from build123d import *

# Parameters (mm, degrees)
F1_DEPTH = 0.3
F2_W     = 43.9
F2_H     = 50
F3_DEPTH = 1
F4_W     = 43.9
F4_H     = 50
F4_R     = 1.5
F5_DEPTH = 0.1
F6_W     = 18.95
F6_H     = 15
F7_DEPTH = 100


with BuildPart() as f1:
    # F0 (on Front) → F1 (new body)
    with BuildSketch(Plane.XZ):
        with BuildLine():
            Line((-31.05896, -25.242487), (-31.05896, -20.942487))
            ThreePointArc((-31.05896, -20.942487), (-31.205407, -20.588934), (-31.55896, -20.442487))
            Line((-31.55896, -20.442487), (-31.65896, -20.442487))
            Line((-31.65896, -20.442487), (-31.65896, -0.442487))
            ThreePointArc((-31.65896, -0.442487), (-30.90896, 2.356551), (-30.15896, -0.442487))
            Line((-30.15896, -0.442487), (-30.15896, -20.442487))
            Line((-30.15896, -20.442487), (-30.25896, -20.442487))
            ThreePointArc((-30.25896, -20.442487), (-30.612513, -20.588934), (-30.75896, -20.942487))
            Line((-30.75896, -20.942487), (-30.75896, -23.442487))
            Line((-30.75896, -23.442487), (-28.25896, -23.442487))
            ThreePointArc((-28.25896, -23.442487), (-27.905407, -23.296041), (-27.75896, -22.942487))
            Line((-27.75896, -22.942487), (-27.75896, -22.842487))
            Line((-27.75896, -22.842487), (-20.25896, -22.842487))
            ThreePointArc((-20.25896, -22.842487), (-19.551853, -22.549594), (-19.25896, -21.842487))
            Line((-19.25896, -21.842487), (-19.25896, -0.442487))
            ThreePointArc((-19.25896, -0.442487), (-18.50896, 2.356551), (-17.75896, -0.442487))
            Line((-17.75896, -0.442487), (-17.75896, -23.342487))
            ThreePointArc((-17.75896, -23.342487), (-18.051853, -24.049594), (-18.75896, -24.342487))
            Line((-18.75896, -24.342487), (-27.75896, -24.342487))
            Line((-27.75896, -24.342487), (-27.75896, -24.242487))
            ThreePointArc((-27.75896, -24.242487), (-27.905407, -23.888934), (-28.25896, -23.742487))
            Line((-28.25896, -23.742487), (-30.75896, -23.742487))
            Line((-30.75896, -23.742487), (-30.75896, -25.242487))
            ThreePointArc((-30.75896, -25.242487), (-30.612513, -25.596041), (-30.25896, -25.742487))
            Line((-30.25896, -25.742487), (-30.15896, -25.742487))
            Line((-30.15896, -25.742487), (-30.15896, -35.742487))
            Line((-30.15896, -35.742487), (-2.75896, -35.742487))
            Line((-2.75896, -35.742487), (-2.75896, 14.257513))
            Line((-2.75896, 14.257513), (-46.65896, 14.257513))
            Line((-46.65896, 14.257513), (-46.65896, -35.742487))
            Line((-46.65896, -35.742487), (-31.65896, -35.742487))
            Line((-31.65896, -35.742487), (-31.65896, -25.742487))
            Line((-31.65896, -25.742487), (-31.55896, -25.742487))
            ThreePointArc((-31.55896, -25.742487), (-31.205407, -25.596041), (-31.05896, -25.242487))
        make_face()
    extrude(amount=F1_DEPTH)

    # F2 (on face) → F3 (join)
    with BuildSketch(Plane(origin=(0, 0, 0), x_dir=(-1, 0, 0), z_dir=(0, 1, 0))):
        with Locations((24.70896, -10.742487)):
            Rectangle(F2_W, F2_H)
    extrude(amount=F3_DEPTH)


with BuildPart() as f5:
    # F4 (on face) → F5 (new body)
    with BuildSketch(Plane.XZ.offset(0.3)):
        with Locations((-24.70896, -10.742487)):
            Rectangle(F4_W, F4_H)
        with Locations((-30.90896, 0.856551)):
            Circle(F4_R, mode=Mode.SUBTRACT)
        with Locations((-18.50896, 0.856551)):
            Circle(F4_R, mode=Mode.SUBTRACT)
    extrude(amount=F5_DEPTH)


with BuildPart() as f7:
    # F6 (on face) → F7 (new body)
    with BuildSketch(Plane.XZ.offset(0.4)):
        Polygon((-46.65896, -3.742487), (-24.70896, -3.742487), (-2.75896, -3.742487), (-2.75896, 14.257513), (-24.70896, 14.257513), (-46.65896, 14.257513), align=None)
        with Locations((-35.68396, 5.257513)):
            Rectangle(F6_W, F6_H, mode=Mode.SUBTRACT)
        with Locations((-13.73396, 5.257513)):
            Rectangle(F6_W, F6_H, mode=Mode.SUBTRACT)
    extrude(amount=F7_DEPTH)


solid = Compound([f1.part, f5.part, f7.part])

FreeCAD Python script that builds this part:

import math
import FreeCAD as App
import Part
import Sketcher
from FreeCAD import Vector


def add_polygon(sketch, points):
    """Adds a closed chain of lines whose ends are joined by coincident constraints."""
    first, n = sketch.GeometryCount, len(points)
    for a, b in zip(points, points[1:] + points[:1]):
        sketch.addGeometry(Part.LineSegment(App.Vector(*a, 0), App.Vector(*b, 0)), False)
    for i in range(n):
        sketch.addConstraint(Sketcher.Constraint("Coincident", first + i, 2, first + (i + 1) % n, 1))

doc = App.newDocument("Part")
params = doc.addObject("Spreadsheet::Sheet", "Params")
for row, (alias, value) in enumerate([
    ("sketch1_radius", "0.999999 mm"),
    ("sketch1_radius2", "0.500001 mm"),
    ("sketch1_radius3", "1.5 mm"),
    ("sketch1_width", "9 mm"),
    ("sketch1_width2", "15 mm"),
    ("pad1_length", "0.3 mm"),
    ("sketch2_height", "50 mm"),
    ("sketch2_width", "43.9 mm"),
    ("pad2_length", "1 mm"),
    ("sketch3_diameter", "3 mm"),
    ("sketch3_height", "50 mm"),
    ("sketch3_width", "43.9 mm"),
    ("pad3_length", "0.1 mm"),
    ("sketch4_height", "18 mm"),
    ("sketch4_height2", "15 mm"),
    ("sketch4_width", "43.9 mm"),
    ("sketch4_width2", "18.95 mm"),
    ("pad4_length", "100 mm"),
], start=1):
    params.set(f"A{row}", alias)
    params.set(f"B{row}", "=" + value)
    params.setAlias(f"B{row}", alias)

body = doc.addObject("PartDesign::Body", "Body")

# Sketch on XZ plane
sketch1 = doc.addObject("Sketcher::SketchObject", "Sketch")
body.addObject(sketch1)
sketch1.AttachmentSupport = (doc.XZ_Plane, [""])
sketch1.MapMode = "FlatFace"
sketch1.addGeometry([
    Part.LineSegment(Vector(-31.05896, -25.242487, 0), Vector(-31.05896, -20.942487, 0)),  # 0
    Part.ArcOfCircle(Part.Circle(Vector(-31.558961, -20.942488, 0), Vector(0, 0, 1), 0.500001), math.radians(0.000153), math.radians(89.999847)),  # 1
    Part.LineSegment(Vector(-31.55896, -20.442487, 0), Vector(-31.65896, -20.442487, 0)),  # 2
    Part.LineSegment(Vector(-31.65896, -20.442487, 0), Vector(-31.65896, -0.442487, 0)),  # 3
    Part.ArcOfCircle(Part.Circle(Vector(-30.90896, 0.856551, 0), Vector(0, 0, 1), 1.5), math.radians(-59.999999), math.radians(239.999999)),  # 4
    Part.LineSegment(Vector(-30.15896, -0.442487, 0), Vector(-30.15896, -20.442487, 0)),  # 5
    Part.LineSegment(Vector(-30.15896, -20.442487, 0), Vector(-30.25896, -20.442487, 0)),  # 6
    Part.ArcOfCircle(Part.Circle(Vector(-30.258959, -20.942488, 0), Vector(0, 0, 1), 0.500001), math.radians(90.000153), math.radians(179.999847)),  # 7
    Part.LineSegment(Vector(-30.75896, -20.942487, 0), Vector(-30.75896, -23.442487, 0)),  # 8
    Part.LineSegment(Vector(-30.75896, -23.442487, 0), Vector(-28.25896, -23.442487, 0)),  # 9
    Part.ArcOfCircle(Part.Circle(Vector(-28.25896, -22.942487, 0), Vector(0, 0, 1), 0.5), math.radians(-90.000043), math.radians(0.000043)),  # 10
    Part.LineSegment(Vector(-27.75896, -22.942487, 0), Vector(-27.75896, -22.842487, 0)),  # 11
    Part.LineSegment(Vector(-27.75896, -22.842487, 0), Vector(-20.25896, -22.842487, 0)),  # 12
    Part.ArcOfCircle(Part.Circle(Vector(-20.258959, -21.842488, 0), Vector(0, 0, 1), 0.999999), math.radians(-90.000043), math.radians(0.000043)),  # 13
    Part.LineSegment(Vector(-19.25896, -21.842487, 0), Vector(-19.25896, -0.442487, 0)),  # 14
    Part.ArcOfCircle(Part.Circle(Vector(-18.50896, 0.856551, 0), Vector(0, 0, 1), 1.5), math.radians(-59.999999), math.radians(239.999999)),  # 15
    Part.LineSegment(Vector(-17.75896, -0.442487, 0), Vector(-17.75896, -23.342487, 0)),  # 16
    Part.ArcOfCircle(Part.Circle(Vector(-18.758959, -23.342488, 0), Vector(0, 0, 1), 0.999999), math.radians(-90.000043), math.radians(0.000043)),  # 17
    Part.LineSegment(Vector(-18.75896, -24.342487, 0), Vector(-27.75896, -24.342487, 0)),  # 18
    Part.LineSegment(Vector(-27.75896, -24.342487, 0), Vector(-27.75896, -24.242487, 0)),  # 19
    Part.ArcOfCircle(Part.Circle(Vector(-28.258961, -24.242488, 0), Vector(0, 0, 1), 0.500001), math.radians(0.000153), math.radians(89.999847)),  # 20
    Part.LineSegment(Vector(-28.25896, -23.742487, 0), Vector(-30.75896, -23.742487, 0)),  # 21
    Part.LineSegment(Vector(-30.75896, -23.742487, 0), Vector(-30.75896, -25.242487, 0)),  # 22
    Part.ArcOfCircle(Part.Circle(Vector(-30.25896, -25.242487, 0), Vector(0, 0, 1), 0.5), math.radians(179.999957), math.radians(270.000043)),  # 23
    Part.LineSegment(Vector(-30.25896, -25.742487, 0), Vector(-30.15896, -25.742487, 0)),  # 24
    Part.LineSegment(Vector(-30.15896, -25.742487, 0), Vector(-30.15896, -35.742487, 0)),  # 25
    Part.LineSegment(Vector(-30.15896, -35.742487, 0), Vector(-2.75896, -35.742487, 0)),  # 26
    Part.LineSegment(Vector(-2.75896, -35.742487, 0), Vector(-2.75896, 14.257513, 0)),  # 27
    Part.LineSegment(Vector(-2.75896, 14.257513, 0), Vector(-46.65896, 14.257513, 0)),  # 28
    Part.LineSegment(Vector(-46.65896, 14.257513, 0), Vector(-46.65896, -35.742487, 0)),  # 29
    Part.LineSegment(Vector(-46.65896, -35.742487, 0), Vector(-31.65896, -35.742487, 0)),  # 30
    Part.LineSegment(Vector(-31.65896, -35.742487, 0), Vector(-31.65896, -25.742487, 0)),  # 31
    Part.LineSegment(Vector(-31.65896, -25.742487, 0), Vector(-31.55896, -25.742487, 0)),  # 32
    Part.ArcOfCircle(Part.Circle(Vector(-31.55896, -25.242487, 0), Vector(0, 0, 1), 0.5), math.radians(-90.000043), math.radians(0.000043)),  # 33
], False)
sketch1.addConstraint([
    Sketcher.Constraint("Coincident", 0, 2, 1, 1),
    Sketcher.Constraint("Coincident", 1, 2, 2, 1),
    Sketcher.Constraint("Coincident", 2, 2, 3, 1),
    Sketcher.Constraint("Coincident", 3, 2, 4, 2),
    Sketcher.Constraint("Coincident", 4, 1, 5, 1),
    Sketcher.Constraint("Coincident", 5, 2, 6, 1),
    Sketcher.Constraint("Coincident", 6, 2, 7, 1),
    Sketcher.Constraint("Coincident", 7, 2, 8, 1),
    Sketcher.Constraint("Coincident", 8, 2, 9, 1),
    Sketcher.Constraint("Tangent", 9, 2, 10, 1),
    Sketcher.Constraint("Tangent", 10, 2, 11, 1),
    Sketcher.Constraint("Coincident", 11, 2, 12, 1),
    Sketcher.Constraint("Tangent", 12, 2, 13, 1),
    Sketcher.Constraint("Tangent", 13, 2, 14, 1),
    Sketcher.Constraint("Coincident", 14, 2, 15, 2),
    Sketcher.Constraint("Coincident", 15, 1, 16, 1),
    Sketcher.Constraint("Tangent", 16, 2, 17, 2),
    Sketcher.Constraint("Tangent", 17, 1, 18, 1),
    Sketcher.Constraint("Coincident", 18, 2, 19, 1),
    Sketcher.Constraint("Coincident", 19, 2, 20, 1),
    Sketcher.Constraint("Coincident", 20, 2, 21, 1),
    Sketcher.Constraint("Coincident", 21, 2, 22, 1),
    Sketcher.Constraint("Tangent", 22, 2, 23, 1),
    Sketcher.Constraint("Tangent", 23, 2, 24, 1),
    Sketcher.Constraint("Coincident", 24, 2, 25, 1),
    Sketcher.Constraint("Coincident", 25, 2, 26, 1),
    Sketcher.Constraint("Coincident", 26, 2, 27, 1),
    Sketcher.Constraint("Coincident", 27, 2, 28, 1),
    Sketcher.Constraint("Coincident", 28, 2, 29, 1),
    Sketcher.Constraint("Coincident", 29, 2, 30, 1),
    Sketcher.Constraint("Coincident", 30, 2, 31, 1),
    Sketcher.Constraint("Coincident", 31, 2, 32, 1),
    Sketcher.Constraint("Tangent", 32, 2, 33, 1),
    Sketcher.Constraint("Tangent", 33, 2, 0, 1),
    Sketcher.Constraint("Vertical", 0),
    Sketcher.Constraint("Horizontal", 2),
    Sketcher.Constraint("Vertical", 3),
    Sketcher.Constraint("Vertical", 5),
    Sketcher.Constraint("Horizontal", 6),
    Sketcher.Constraint("Vertical", 8),
    Sketcher.Constraint("Horizontal", 9),
    Sketcher.Constraint("Vertical", 11),
    Sketcher.Constraint("Horizontal", 12),
    Sketcher.Constraint("Vertical", 14),
    Sketcher.Constraint("Vertical", 16),
    Sketcher.Constraint("Horizontal", 18),
    Sketcher.Constraint("Vertical", 19),
    Sketcher.Constraint("Horizontal", 21),
    Sketcher.Constraint("Vertical", 22),
    Sketcher.Constraint("Horizontal", 24),
    Sketcher.Constraint("Vertical", 25),
    Sketcher.Constraint("Horizontal", 26),
    Sketcher.Constraint("Vertical", 27),
    Sketcher.Constraint("Horizontal", 28),
    Sketcher.Constraint("Vertical", 29),
    Sketcher.Constraint("Horizontal", 30),
    Sketcher.Constraint("Vertical", 31),
    Sketcher.Constraint("Horizontal", 32),
    Sketcher.Constraint("Equal", 1, 7),
    Sketcher.Constraint("Equal", 7, 10),
    Sketcher.Constraint("Equal", 4, 15),
    Sketcher.Constraint("Equal", 13, 17),
    Sketcher.Constraint("Equal", 10, 20),
    Sketcher.Constraint("Equal", 20, 23),
    Sketcher.Constraint("Equal", 23, 33),
    Sketcher.Constraint("Horizontal", 1, 3, 7, 3),
    Sketcher.Constraint("Horizontal", 4, 3, 15, 3),
    Sketcher.Constraint("Horizontal", 23, 3, 33, 3),
    Sketcher.Constraint("Horizontal", 7, 3, 0, 2),
    Sketcher.Constraint("Horizontal", 3, 2, 4, 1),
    Sketcher.Constraint("Horizontal", 0, 2, 7, 2),
    Sketcher.Constraint("Horizontal", 4, 1, 14, 2),
    Sketcher.Constraint("Horizontal", 14, 2, 15, 1),
    Sketcher.Constraint("Horizontal", 20, 3, 19, 2),
    Sketcher.Constraint("Horizontal", 26, 2, 29, 2),
    Sketcher.Constraint("Vertical", 10, 3, 20, 3),
    Sketcher.Constraint("Vertical", 7, 3, 23, 3),
    Sketcher.Constraint("Vertical", 33, 3, 1, 2),
    Sketcher.Constraint("Vertical", 23, 3, 6, 2),
    Sketcher.Constraint("Vertical", 9, 2, 20, 2),
    Sketcher.Constraint("Vertical", 5, 2, 24, 2),
    Sketcher.Constraint("Vertical", 3, 2, 30, 2),
    Sketcher.Constraint("Equal", 2, 6),
    Sketcher.Constraint("Equal", 21, 8),
    Sketcher.Constraint("Equal", 32, 11),
    Sketcher.Constraint("Equal", 11, 19),
    Sketcher.Constraint("Radius", 13, 0.999999),
    Sketcher.Constraint("Radius", 1, 0.500001),
    Sketcher.Constraint("Radius", 4, 1.5),
    Sketcher.Constraint("DistanceX", 18, 2, 18, 1, 9.0),
    Sketcher.Constraint("DistanceX", 30, 1, 30, 2, 15.0),
    Sketcher.Constraint("DistanceY", 3, 1, 3, 2, 20.0),
    Sketcher.Constraint("DistanceY", 25, 2, 25, 1, 10.0),
    Sketcher.Constraint("DistanceY", 27, 1, 27, 2, 50.0),
    Sketcher.Constraint("DistanceX", 2, 2, 2, 1, 0.1),
    Sketcher.Constraint("DistanceX", 9, 1, 9, 2, 2.5),
    Sketcher.Constraint("DistanceX", 12, 1, 12, 2, 7.5),
    Sketcher.Constraint("DistanceX", 26, 1, 26, 2, 27.4),
    Sketcher.Constraint("DistanceY", 0, 1, 0, 2, 4.3),
    Sketcher.Constraint("DistanceY", 16, 2, 16, 1, 22.9),
    Sketcher.Constraint("DistanceX", 1, 3, -1, 1, 31.558961),
    Sketcher.Constraint("DistanceY", 1, 3, -1, 1, 20.942488),
])
sketch1.setExpression("Constraints[86]", "Params.sketch1_radius")
sketch1.setExpression("Constraints[87]", "Params.sketch1_radius2")
sketch1.setExpression("Constraints[88]", "Params.sketch1_radius3")
sketch1.setExpression("Constraints[89]", "Params.sketch1_width")
sketch1.setExpression("Constraints[90]", "Params.sketch1_width2")
pad1 = doc.addObject("PartDesign::Pad", "Pad")
body.addObject(pad1)
pad1.Profile = sketch1
pad1.setExpression("Length", "Params.pad1_length")

# Sketch on XZ plane
sketch2 = doc.addObject("Sketcher::SketchObject", "Sketch001")
body.addObject(sketch2)
sketch2.AttachmentSupport = (doc.XZ_Plane, [""])
sketch2.MapMode = "FlatFace"
add_polygon(sketch2, [(-2.75896, 14.257513), (-2.75896, -35.742487), (-46.65896, -35.742487), (-46.65896, 14.257513)])  # lines 0-3
sketch2.addConstraint([
    Sketcher.Constraint("Vertical", 0),
    Sketcher.Constraint("Horizontal", 1),
    Sketcher.Constraint("Vertical", 2),
    Sketcher.Constraint("Horizontal", 3),
    Sketcher.Constraint("DistanceY", 0, 2, 0, 1, 50.0),
    Sketcher.Constraint("DistanceX", 1, 2, 1, 1, 43.9),
    Sketcher.Constraint("DistanceX", 0, 2, -1, 1, 2.75896),
    Sketcher.Constraint("DistanceY", 0, 2, -1, 1, 35.742487),
])
sketch2.setExpression("Constraints[8]", "Params.sketch2_height")
sketch2.setExpression("Constraints[9]", "Params.sketch2_width")
pad2 = doc.addObject("PartDesign::Pad", "Pad001")
body.addObject(pad2)
pad2.Profile = sketch2
pad2.setExpression("Length", "Params.pad2_length")
pad2.Reversed = True
body2 = doc.addObject("PartDesign::Body", "Body001")

# Sketch on XZ plane
sketch3 = doc.addObject("Sketcher::SketchObject", "Sketch002")
body2.addObject(sketch3)
sketch3.AttachmentSupport = (doc.getObject("XZ_Plane001"), [""])
sketch3.MapMode = "FlatFace"
sketch3.AttachmentOffset = App.Placement(Vector(0, 0, 0.3), App.Rotation())
add_polygon(sketch3, [(-46.65896, 14.257513), (-46.65896, -35.742487), (-2.75896, -35.742487), (-2.75896, 14.257513)])  # lines 0-3
sketch3.addGeometry(Part.Circle(Vector(-30.90896, 0.856551, 0), Vector(0, 0, 1), 1.5), False)  # 4
sketch3.addGeometry(Part.Circle(Vector(-18.50896, 0.856551, 0), Vector(0, 0, 1), 1.5), False)  # 5
sketch3.addConstraint([
    Sketcher.Constraint("Vertical", 0),
    Sketcher.Constraint("Horizontal", 1),
    Sketcher.Constraint("Vertical", 2),
    Sketcher.Constraint("Horizontal", 3),
    Sketcher.Constraint("Equal", 4, 5),
    Sketcher.Constraint("Horizontal", 4, 3, 5, 3),
    Sketcher.Constraint("Diameter", 4, 3.0),
    Sketcher.Constraint("DistanceY", 0, 2, 0, 1, 50.0),
    Sketcher.Constraint("DistanceX", 1, 1, 1, 2, 43.9),
    Sketcher.Constraint("DistanceX", 4, 3, 5, 3, 12.4),
    Sketcher.Constraint("DistanceX", 0, 2, 4, 3, 15.75),
    Sketcher.Constraint("DistanceX", 4, 3, -1, 1, 30.90896),
    Sketcher.Constraint("DistanceY", -1, 1, 4, 3, 0.856551),
    Sketcher.Constraint("DistanceY", 0, 2, -1, 1, 35.742487),
])
sketch3.setExpression("Constraints[10]", "Params.sketch3_diameter")
sketch3.setExpression("Constraints[11]", "Params.sketch3_height")
sketch3.setExpression("Constraints[12]", "Params.sketch3_width")
pad3 = doc.addObject("PartDesign::Pad", "Pad002")
body2.addObject(pad3)
pad3.Profile = sketch3
pad3.setExpression("Length", "Params.pad3_length")
body3 = doc.addObject("PartDesign::Body", "Body002")

# Sketch on XZ plane
sketch4 = doc.addObject("Sketcher::SketchObject", "Sketch003")
body3.addObject(sketch4)
sketch4.AttachmentSupport = (doc.getObject("XZ_Plane002"), [""])
sketch4.MapMode = "FlatFace"
sketch4.AttachmentOffset = App.Placement(Vector(0, 0, 0.4), App.Rotation())
add_polygon(sketch4, [(-46.65896, -3.742487), (-2.75896, -3.742487), (-2.75896, 14.257513), (-46.65896, 14.257513)])  # lines 0-3
add_polygon(sketch4, [(-26.20896, -2.242487), (-45.15896, -2.242487), (-45.15896, 12.757513), (-26.20896, 12.757513)])  # lines 4-7
add_polygon(sketch4, [(-4.25896, -2.242487), (-23.20896, -2.242487), (-23.20896, 12.757513), (-4.25896, 12.757513)])  # lines 8-11
sketch4.addConstraint([
    Sketcher.Constraint("Horizontal", 0),
    Sketcher.Constraint("Vertical", 1),
    Sketcher.Constraint("Horizontal", 2),
    Sketcher.Constraint("Vertical", 3),
    Sketcher.Constraint("Horizontal", 4),
    Sketcher.Constraint("Vertical", 5),
    Sketcher.Constraint("Horizontal", 6),
    Sketcher.Constraint("Vertical", 7),
    Sketcher.Constraint("Horizontal", 8),
    Sketcher.Constraint("Vertical", 9),
    Sketcher.Constraint("Horizontal", 10),
    Sketcher.Constraint("Vertical", 11),
    Sketcher.Constraint("Horizontal", 7, 2, 8, 2),
    Sketcher.Constraint("Horizontal", 6, 2, 9, 2),
    Sketcher.Constraint("Equal", 6, 8),
    Sketcher.Constraint("DistanceY", 1, 1, 1, 2, 18.0),
    Sketcher.Constraint("DistanceY", 5, 1, 5, 2, 15.0),
    Sketcher.Constraint("DistanceX", 0, 1, 0, 2, 43.9),
    Sketcher.Constraint("DistanceX", 7, 2, 8, 2, 3.0),
    Sketcher.Constraint("DistanceX", 4, 2, 4, 1, 18.95),
    Sketcher.Constraint("DistanceX", 3, 2, 4, 2, 1.5),
    Sketcher.Constraint("DistanceY", 3, 2, 4, 2, 1.5),
    Sketcher.Constraint("DistanceX", 0, 2, -1, 1, 2.75896),
    Sketcher.Constraint("DistanceY", 0, 2, -1, 1, 3.742487),
])
sketch4.setExpression("Constraints[27]", "Params.sketch4_height")
sketch4.setExpression("Constraints[28]", "Params.sketch4_height2")
sketch4.setExpression("Constraints[29]", "Params.sketch4_width")
sketch4.setExpression("Constraints[31]", "Params.sketch4_width2")
pad4 = doc.addObject("PartDesign::Pad", "Pad003")
body3.addObject(pad4)
pad4.Profile = sketch4
pad4.setExpression("Length", "Params.pad4_length")

doc.recompute()
